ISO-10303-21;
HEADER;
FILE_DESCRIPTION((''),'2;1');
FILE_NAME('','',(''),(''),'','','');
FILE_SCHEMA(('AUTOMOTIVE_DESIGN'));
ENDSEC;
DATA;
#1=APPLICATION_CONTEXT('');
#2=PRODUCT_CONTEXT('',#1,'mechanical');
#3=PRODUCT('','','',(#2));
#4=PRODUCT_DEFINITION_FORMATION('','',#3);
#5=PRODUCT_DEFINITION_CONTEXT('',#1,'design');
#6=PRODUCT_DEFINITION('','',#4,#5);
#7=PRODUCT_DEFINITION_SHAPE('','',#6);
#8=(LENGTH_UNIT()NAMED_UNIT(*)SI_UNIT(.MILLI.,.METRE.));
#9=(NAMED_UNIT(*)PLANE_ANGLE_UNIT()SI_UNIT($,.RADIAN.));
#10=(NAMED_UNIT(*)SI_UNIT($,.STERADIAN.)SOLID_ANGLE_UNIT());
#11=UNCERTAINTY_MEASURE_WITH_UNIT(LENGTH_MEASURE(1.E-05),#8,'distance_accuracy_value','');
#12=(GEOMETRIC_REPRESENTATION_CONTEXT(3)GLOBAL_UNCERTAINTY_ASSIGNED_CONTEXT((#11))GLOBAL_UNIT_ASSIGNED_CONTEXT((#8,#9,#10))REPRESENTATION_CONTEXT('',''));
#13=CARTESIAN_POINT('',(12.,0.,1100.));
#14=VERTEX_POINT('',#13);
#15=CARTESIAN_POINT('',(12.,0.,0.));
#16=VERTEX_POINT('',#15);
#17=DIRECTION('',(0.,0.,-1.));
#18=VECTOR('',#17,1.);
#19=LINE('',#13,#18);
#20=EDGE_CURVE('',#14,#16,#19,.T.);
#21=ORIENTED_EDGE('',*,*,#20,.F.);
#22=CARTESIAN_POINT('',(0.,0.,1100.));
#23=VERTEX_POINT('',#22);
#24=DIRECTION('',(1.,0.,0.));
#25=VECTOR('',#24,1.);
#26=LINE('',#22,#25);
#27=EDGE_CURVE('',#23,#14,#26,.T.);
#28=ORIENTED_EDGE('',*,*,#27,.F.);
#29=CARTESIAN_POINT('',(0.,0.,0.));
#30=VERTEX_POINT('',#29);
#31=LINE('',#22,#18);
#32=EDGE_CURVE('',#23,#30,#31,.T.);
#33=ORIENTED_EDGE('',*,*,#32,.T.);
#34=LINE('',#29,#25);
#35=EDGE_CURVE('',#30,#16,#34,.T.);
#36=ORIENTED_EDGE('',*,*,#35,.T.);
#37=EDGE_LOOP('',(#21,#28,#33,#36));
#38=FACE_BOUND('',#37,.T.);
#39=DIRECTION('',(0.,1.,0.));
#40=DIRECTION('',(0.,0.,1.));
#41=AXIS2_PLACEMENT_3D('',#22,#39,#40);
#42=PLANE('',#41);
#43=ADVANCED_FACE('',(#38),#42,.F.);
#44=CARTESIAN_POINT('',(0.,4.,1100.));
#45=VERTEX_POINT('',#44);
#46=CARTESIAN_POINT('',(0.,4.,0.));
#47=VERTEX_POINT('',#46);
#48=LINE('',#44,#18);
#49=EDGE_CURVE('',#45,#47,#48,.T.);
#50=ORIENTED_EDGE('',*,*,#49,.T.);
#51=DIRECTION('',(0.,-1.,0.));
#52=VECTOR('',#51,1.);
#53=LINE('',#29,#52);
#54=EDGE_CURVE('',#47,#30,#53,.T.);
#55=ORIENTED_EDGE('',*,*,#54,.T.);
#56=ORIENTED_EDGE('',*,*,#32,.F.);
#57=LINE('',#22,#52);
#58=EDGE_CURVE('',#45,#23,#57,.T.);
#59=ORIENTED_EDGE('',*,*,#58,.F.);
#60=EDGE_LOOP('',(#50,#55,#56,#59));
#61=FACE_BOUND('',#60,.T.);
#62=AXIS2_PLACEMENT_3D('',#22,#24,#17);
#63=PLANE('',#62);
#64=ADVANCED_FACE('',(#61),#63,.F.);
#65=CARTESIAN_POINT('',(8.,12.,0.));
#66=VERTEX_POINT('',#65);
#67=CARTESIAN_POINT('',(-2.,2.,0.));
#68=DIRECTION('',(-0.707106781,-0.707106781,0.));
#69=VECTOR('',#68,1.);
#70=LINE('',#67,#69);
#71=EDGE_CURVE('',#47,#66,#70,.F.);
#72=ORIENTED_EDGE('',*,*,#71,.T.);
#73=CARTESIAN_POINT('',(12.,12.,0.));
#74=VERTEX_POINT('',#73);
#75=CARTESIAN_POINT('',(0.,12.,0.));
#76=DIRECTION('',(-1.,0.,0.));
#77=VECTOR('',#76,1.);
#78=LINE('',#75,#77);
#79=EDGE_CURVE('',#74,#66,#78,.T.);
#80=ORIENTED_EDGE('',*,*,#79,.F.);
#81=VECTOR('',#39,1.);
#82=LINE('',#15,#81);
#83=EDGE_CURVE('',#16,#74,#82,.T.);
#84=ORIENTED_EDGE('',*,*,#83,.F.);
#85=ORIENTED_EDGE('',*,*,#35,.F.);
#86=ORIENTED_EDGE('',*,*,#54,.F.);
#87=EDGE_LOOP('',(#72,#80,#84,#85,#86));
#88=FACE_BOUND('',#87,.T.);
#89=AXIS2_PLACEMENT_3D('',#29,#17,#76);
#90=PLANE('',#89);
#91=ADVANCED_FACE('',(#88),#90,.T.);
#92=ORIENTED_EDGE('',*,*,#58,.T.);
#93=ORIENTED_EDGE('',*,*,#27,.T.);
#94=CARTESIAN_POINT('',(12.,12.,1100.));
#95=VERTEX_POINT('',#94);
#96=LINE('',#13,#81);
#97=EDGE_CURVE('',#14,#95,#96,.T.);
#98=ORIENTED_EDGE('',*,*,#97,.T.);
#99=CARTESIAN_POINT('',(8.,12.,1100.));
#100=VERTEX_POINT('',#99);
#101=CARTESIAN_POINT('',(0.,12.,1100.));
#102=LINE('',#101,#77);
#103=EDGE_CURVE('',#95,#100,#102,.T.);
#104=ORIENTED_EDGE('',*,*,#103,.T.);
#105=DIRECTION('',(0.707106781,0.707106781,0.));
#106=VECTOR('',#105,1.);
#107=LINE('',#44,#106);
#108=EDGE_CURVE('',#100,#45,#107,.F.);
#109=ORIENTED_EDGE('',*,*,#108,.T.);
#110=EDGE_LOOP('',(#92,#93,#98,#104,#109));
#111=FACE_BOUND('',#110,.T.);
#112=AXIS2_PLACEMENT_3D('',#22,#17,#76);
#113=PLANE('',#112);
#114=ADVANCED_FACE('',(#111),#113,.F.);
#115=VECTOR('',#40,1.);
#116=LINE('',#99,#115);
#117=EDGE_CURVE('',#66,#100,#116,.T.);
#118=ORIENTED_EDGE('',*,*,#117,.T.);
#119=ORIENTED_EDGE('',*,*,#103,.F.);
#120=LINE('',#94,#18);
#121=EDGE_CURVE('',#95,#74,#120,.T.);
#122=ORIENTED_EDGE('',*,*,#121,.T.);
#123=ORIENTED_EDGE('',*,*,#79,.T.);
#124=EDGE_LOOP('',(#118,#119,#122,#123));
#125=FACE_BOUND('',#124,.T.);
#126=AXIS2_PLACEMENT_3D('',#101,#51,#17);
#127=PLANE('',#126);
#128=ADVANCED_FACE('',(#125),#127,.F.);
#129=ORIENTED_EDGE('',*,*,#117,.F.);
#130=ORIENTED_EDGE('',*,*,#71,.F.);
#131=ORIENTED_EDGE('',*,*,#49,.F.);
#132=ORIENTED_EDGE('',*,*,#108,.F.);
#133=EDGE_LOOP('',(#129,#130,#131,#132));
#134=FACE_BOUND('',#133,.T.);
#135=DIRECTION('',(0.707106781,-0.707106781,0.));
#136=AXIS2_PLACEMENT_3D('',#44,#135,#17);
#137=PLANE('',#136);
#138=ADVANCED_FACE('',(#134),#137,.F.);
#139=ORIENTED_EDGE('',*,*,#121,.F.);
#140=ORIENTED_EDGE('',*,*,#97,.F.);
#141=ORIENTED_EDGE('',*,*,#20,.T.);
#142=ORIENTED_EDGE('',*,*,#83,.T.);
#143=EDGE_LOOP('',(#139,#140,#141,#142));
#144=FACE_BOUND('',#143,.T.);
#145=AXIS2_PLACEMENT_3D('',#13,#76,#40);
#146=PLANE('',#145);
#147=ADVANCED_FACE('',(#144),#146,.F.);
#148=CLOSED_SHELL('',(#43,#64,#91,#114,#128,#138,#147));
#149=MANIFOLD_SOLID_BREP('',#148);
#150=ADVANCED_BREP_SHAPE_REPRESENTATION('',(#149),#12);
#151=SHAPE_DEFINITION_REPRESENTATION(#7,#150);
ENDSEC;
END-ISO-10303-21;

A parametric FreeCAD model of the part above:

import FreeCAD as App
import Part
import Sketcher


def edges_at(feature, points):
    """Names of the edges that pass closest to the given points."""
    edges = feature.Shape.Edges
    near = lambda p: min(range(len(edges)), key=lambda i: edges[i].distToShape(Part.Vertex(*p))[0])
    return sorted({f"Edge{near(p) + 1}" for p in points})

doc = App.newDocument("Part")
body = doc.addObject("PartDesign::Body", "Body")

sketch1 = body.newObject("Sketcher::SketchObject", "Sketch")
sketch1.AttachmentSupport = (doc.getObject("XY_Plane"), [""])
sketch1.MapMode = "FlatFace"
sketch1.addGeometry(Part.LineSegment(App.Vector(0, 12, 0), App.Vector(0, 0, 0)), False)
sketch1.addGeometry(Part.LineSegment(App.Vector(0, 0, 0), App.Vector(12, 0, 0)), False)
sketch1.addGeometry(Part.LineSegment(App.Vector(12, 0, 0), App.Vector(12, 12, 0)), False)
sketch1.addGeometry(Part.LineSegment(App.Vector(12, 12, 0), App.Vector(0, 12, 0)), False)
sketch1.addConstraint(Sketcher.Constraint("Coincident", 0, 2, 1, 1))
sketch1.addConstraint(Sketcher.Constraint("Coincident", 1, 2, 2, 1))
sketch1.addConstraint(Sketcher.Constraint("Coincident", 2, 2, 3, 1))
sketch1.addConstraint(Sketcher.Constraint("Coincident", 3, 2, 0, 1))
sketch1.addConstraint(Sketcher.Constraint("Vertical", 0))
sketch1.addConstraint(Sketcher.Constraint("Horizontal", 1))
sketch1.addConstraint(Sketcher.Constraint("Vertical", 2))
sketch1.addConstraint(Sketcher.Constraint("Horizontal", 3))
sketch1.addConstraint(Sketcher.Constraint("Coincident", 0, 2, -1, 1))
sketch1.addConstraint(Sketcher.Constraint("Equal", 3, 0))
sketch1.addConstraint(Sketcher.Constraint("DistanceX", 1, 1, 1, 2, 12.0))
pad1 = body.newObject("PartDesign::Pad", "Pad")
pad1.Profile = sketch1
pad1.Length = 1100
doc.recompute()

chamfer = body.newObject("PartDesign::Chamfer", "Chamfer")
chamfer.Base = (pad1, edges_at(pad1, [(0, 12, 550)]))
chamfer.Size = 8

doc.recompute()
